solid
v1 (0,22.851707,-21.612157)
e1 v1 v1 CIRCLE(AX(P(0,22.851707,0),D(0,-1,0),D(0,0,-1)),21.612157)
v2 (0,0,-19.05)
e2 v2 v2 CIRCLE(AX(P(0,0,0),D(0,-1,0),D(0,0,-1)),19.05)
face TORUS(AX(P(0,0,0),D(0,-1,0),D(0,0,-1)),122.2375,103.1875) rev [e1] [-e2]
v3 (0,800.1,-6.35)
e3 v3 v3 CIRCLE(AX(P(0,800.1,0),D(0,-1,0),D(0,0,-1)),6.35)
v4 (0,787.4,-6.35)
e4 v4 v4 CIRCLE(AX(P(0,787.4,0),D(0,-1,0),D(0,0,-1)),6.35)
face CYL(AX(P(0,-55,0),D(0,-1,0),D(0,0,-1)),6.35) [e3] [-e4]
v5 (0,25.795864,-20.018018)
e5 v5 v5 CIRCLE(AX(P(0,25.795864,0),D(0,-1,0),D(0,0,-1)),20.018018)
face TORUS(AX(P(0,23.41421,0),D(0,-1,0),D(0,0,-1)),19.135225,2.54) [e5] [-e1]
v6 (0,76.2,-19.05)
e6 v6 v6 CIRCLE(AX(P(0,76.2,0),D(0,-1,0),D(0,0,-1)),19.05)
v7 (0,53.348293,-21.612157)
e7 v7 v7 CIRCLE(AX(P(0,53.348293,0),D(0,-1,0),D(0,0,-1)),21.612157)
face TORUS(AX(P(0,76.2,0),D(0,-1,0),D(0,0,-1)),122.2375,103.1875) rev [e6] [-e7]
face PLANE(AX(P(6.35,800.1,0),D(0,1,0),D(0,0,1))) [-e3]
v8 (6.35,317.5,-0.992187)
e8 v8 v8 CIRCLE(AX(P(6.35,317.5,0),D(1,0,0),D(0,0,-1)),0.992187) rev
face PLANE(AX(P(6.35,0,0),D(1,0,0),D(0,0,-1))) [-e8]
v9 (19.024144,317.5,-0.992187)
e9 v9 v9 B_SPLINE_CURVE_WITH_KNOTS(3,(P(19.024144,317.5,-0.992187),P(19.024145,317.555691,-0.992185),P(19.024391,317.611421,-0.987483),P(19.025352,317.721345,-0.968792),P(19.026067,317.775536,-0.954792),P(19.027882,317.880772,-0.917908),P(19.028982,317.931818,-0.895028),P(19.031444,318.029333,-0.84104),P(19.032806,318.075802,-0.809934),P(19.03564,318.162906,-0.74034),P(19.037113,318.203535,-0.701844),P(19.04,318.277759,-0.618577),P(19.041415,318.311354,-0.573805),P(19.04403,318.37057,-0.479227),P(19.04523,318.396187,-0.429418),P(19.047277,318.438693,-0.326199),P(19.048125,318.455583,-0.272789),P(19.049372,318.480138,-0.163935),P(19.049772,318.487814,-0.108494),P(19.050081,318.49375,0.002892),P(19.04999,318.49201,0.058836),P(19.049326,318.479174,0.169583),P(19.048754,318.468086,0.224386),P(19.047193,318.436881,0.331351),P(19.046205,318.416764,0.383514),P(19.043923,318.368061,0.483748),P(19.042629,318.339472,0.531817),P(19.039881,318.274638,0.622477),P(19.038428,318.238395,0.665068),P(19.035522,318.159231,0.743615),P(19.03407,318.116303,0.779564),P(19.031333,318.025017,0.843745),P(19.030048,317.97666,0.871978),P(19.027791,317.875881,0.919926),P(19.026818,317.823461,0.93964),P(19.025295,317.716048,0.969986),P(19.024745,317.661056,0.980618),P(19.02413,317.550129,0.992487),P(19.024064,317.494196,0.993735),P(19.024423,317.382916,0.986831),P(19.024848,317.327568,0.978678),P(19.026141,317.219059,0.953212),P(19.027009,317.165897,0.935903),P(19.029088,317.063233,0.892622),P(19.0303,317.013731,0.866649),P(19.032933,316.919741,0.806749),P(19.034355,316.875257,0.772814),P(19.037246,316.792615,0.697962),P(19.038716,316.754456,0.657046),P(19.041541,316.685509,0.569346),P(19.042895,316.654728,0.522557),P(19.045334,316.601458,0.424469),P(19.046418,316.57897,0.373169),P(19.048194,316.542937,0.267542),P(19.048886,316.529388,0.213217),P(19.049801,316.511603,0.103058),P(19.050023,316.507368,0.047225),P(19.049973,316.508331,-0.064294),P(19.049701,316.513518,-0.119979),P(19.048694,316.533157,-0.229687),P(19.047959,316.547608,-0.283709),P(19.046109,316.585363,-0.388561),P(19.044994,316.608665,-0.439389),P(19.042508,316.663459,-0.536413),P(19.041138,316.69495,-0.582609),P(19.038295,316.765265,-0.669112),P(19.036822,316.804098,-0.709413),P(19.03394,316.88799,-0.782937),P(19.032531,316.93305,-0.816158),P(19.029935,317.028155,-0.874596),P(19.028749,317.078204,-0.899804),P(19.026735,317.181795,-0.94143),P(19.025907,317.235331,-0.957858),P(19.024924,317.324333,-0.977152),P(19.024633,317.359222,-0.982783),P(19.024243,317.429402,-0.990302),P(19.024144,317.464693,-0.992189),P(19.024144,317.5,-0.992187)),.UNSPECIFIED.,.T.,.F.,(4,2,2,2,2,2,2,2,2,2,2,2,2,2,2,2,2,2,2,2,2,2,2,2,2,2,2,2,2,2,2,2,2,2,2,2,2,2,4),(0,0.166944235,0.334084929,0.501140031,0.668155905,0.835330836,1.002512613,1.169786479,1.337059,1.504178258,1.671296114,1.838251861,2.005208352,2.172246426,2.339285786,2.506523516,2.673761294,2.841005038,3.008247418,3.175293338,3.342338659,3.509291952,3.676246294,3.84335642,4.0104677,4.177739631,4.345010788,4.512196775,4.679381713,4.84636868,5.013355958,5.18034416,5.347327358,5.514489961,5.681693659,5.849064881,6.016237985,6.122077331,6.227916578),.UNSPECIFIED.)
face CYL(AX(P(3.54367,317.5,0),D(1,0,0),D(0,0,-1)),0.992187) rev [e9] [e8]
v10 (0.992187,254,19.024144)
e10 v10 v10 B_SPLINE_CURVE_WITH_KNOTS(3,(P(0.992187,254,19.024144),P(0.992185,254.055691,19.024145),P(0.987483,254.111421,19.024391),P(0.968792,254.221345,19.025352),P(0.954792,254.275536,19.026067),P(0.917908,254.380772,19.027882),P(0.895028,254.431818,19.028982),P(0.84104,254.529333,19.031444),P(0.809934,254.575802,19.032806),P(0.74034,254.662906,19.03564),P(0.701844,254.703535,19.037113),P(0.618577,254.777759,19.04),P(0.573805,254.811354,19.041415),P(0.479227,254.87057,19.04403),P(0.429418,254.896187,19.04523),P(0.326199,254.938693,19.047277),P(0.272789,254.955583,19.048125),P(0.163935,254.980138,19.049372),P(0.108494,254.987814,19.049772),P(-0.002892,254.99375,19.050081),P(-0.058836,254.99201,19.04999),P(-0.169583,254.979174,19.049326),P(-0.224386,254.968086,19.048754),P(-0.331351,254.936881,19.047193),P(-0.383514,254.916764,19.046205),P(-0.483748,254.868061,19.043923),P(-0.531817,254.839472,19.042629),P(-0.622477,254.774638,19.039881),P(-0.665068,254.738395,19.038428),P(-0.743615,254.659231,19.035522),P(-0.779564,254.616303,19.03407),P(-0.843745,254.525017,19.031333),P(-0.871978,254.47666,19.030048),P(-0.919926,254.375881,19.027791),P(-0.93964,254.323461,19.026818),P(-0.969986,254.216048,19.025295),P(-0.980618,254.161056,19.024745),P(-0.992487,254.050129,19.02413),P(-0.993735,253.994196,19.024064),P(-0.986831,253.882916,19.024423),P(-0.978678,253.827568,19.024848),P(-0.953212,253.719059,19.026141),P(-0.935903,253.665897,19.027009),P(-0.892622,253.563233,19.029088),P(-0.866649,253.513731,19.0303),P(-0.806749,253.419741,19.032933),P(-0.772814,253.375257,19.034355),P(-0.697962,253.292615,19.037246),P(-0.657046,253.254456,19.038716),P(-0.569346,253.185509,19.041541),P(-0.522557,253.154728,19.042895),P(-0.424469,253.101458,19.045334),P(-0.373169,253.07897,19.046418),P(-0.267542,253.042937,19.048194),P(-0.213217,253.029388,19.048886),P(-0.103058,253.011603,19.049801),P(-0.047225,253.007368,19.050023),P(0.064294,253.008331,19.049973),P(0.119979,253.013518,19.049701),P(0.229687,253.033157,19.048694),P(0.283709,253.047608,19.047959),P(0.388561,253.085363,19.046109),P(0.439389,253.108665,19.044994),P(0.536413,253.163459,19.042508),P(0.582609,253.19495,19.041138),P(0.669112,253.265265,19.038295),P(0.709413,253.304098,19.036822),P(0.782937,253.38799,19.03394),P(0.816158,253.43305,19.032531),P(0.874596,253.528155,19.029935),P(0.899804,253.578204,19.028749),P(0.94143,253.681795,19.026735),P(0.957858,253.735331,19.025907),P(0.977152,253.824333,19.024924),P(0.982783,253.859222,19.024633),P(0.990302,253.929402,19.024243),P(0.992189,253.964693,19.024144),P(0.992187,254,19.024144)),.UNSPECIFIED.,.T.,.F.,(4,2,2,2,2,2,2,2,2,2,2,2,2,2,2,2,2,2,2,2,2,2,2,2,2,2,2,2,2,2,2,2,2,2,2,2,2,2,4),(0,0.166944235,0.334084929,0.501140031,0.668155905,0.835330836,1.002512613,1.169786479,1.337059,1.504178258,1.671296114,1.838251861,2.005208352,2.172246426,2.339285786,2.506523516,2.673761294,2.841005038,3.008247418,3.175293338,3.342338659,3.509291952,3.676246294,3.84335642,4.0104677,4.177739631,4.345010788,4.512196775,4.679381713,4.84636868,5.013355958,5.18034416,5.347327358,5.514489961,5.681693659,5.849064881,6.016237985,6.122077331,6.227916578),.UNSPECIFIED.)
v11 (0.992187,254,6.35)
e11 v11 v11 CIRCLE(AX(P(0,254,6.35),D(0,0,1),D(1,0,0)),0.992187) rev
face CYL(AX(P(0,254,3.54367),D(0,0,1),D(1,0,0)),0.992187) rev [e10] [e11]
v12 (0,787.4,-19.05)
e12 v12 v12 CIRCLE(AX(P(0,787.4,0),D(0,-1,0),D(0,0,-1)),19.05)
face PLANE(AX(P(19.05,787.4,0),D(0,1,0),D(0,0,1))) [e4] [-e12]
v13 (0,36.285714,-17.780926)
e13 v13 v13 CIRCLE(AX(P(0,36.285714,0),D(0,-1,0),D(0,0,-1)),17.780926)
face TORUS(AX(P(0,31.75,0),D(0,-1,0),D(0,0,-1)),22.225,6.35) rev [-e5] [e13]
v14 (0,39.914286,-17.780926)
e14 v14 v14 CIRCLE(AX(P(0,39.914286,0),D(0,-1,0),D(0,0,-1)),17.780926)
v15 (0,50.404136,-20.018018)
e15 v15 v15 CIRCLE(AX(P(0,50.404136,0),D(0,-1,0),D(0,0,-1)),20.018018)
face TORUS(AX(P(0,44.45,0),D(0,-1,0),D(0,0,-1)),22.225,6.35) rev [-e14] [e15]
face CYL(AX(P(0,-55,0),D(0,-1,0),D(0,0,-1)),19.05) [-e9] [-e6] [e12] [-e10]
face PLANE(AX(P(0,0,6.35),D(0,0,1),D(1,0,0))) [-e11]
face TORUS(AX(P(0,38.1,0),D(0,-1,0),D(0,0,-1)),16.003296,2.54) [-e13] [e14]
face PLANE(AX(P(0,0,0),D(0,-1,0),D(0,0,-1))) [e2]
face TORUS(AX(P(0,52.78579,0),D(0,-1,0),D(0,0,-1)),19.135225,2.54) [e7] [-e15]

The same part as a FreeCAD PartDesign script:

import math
import FreeCAD as App
import Part
import Sketcher

V = App.Vector
Q = App.Units.Quantity

doc = App.newDocument("Part")
body = doc.addObject("PartDesign::Body", "Body")

sketch1 = body.newObject("Sketcher::SketchObject", "Sketch")
sketch1.AttachmentSupport = (doc.getObject("XY_Plane"), [""])
sketch1.MapMode = "FlatFace"
sketch1.addGeometry([
    Part.LineSegment(V(0, 0, 0), V(19.1, 0, 0)),
    Part.ArcOfCircle(Part.Circle(V(122.2, 0, 0), V(0, 0, 1), 103.2), math.radians(167.21), math.radians(180)),
    Part.ArcOfCircle(Part.Circle(V(19.1, 23.4, 0), V(0, 0, 1), 2.5), math.radians(-13), math.radians(70)),
    Part.ArcOfCircle(Part.Circle(V(22.2, 31.8, 0), V(0, 0, 1), 6.4), math.radians(180), math.radians(250)),
    Part.ArcOfCircle(Part.Circle(V(22.2, 31.7, 0), V(0, 0, 1), 6.4), math.radians(134), math.radians(180)),
    Part.ArcOfCircle(Part.Circle(V(16, 38.1, 0), V(0, 0, 1), 2.5), math.radians(-46), math.radians(46)),
    Part.ArcOfCircle(Part.Circle(V(22.2, 44.5, 0), V(0, 0, 1), 6.4), math.radians(-180), math.radians(-134)),
    Part.ArcOfCircle(Part.Circle(V(22.2, 44.5, 0), V(0, 0, 1), 6.4), math.radians(110), math.radians(180)),
    Part.ArcOfCircle(Part.Circle(V(19.1, 52.8, 0), V(0, 0, 1), 2.5), math.radians(-70), math.radians(13)),
    Part.ArcOfCircle(Part.Circle(V(122.2, 76.2, 0), V(0, 0, 1), 103.2), math.radians(180), math.radians(192.79)),
    Part.LineSegment(V(19.1, 76.2, 0), V(19.1, 787.4, 0)),
    Part.LineSegment(V(19.1, 787.4, 0), V(6.3, 787.4, 0)),
    Part.LineSegment(V(6.3, 787.4, 0), V(6.3, 800.1, 0)),
    Part.LineSegment(V(6.3, 800.1, 0), V(0, 800.1, 0)),
    Part.LineSegment(V(0, 800.1, 0), V(0, 0, 0)),
], False)
sketch1.addConstraint([
    Sketcher.Constraint("Coincident", 0, 2, 1, 2),
    Sketcher.Constraint("Tangent", 1, 1, 2, 1),
    Sketcher.Constraint("Tangent", 2, 2, 3, 2),
    Sketcher.Constraint("Tangent", 3, 1, 4, 2),
    Sketcher.Constraint("Tangent", 4, 1, 5, 1),
    Sketcher.Constraint("Tangent", 5, 2, 6, 2),
    Sketcher.Constraint("Tangent", 6, 1, 7, 2),
    Sketcher.Constraint("Tangent", 7, 1, 8, 1),
    Sketcher.Constraint("Tangent", 8, 2, 9, 2),
    Sketcher.Constraint("Tangent", 9, 1, 10, 1),
    Sketcher.Constraint("Coincident", 10, 2, 11, 1),
    Sketcher.Constraint("Coincident", 11, 2, 12, 1),
    Sketcher.Constraint("Coincident", 12, 2, 13, 1),
    Sketcher.Constraint("Coincident", 13, 2, 14, 1),
    Sketcher.Constraint("Coincident", 14, 2, 0, 1),
    Sketcher.Constraint("Horizontal", 0),
    Sketcher.Constraint("Vertical", 10),
    Sketcher.Constraint("Horizontal", 11),
    Sketcher.Constraint("Vertical", 12),
    Sketcher.Constraint("Horizontal", 13),
    Sketcher.Constraint("Vertical", 14),
    Sketcher.Constraint("Coincident", 14, 2, -1, 1),
    Sketcher.Constraint("Equal", 3, 4),
    Sketcher.Constraint("Equal", 2, 5),
    Sketcher.Constraint("Equal", 4, 6),
    Sketcher.Constraint("Equal", 6, 7),
    Sketcher.Constraint("Equal", 5, 8),
    Sketcher.Constraint("Equal", 1, 9),
    Sketcher.Constraint("PointOnObject", 1, 3, -1),
    Sketcher.Constraint("Horizontal", 4, 3, 3, 1),
    Sketcher.Constraint("Horizontal", 7, 3, 6, 1),
    Sketcher.Constraint("Vertical", 4, 3, 6, 3),
    Sketcher.Constraint("Vertical", 2, 3, 8, 3),
    Sketcher.Constraint("Vertical", 1, 3, 9, 3),
    Sketcher.Constraint("Equal", 11, 12),
    Sketcher.Constraint("Radius", 2, Q("0.1 in")),
    Sketcher.Constraint("DistanceY", 10, 1, 10, 2, Q("28 in")),
    Sketcher.Constraint("Radius", 3, Q("0.25 in")),
    Sketcher.Constraint("DistanceX", 11, 2, 11, 1, Q("0.5 in")),
    Sketcher.Constraint("DistanceY", 14, 2, 14, 1, Q("31.5 in")),
    Sketcher.Constraint("Radius", 1, Q("4.0625 in")),
    Sketcher.Constraint("DistanceX", 0, 1, 0, 2, Q("0.75 in")),
    Sketcher.Constraint("DistanceY", 3, 3, 6, 3, Q("0.5 in")),
    Sketcher.Constraint("DistanceX", -1, 1, 3, 3, Q("0.875 in")),
])
revolution = body.newObject("PartDesign::Revolution", "Revolution")
revolution.Profile = sketch1
revolution.ReferenceAxis = (sketch1, ["V_Axis"])
revolution.Angle = 360

sketch2 = body.newObject("Sketcher::SketchObject", "Sketch001")
sketch2.AttachmentSupport = (doc.getObject("XY_Plane"), [""])
sketch2.MapMode = "FlatFace"
sketch2.AttachmentOffset = App.Placement(V(0, 0, 0.25 * 25.4), App.Rotation())
sketch2.addGeometry(Part.Circle(V(0, 254, 0), V(0, 0, 1), 1), False)
sketch2.addConstraint([
    Sketcher.Constraint("PointOnObject", 0, 3, -2),
    Sketcher.Constraint("Diameter", 0, Q("0.078125 in")),
    Sketcher.Constraint("DistanceY", -1, 1, 0, 3, Q("10 in")),
])
pocket1 = body.newObject("PartDesign::Pocket", "Pocket")
pocket1.Profile = sketch2
pocket1.Length = Q("0.5 in")
pocket1.Reversed = True

sketch3 = body.newObject("Sketcher::SketchObject", "Sketch002")
sketch3.AttachmentSupport = (doc.getObject("YZ_Plane"), [""])
sketch3.MapMode = "FlatFace"
sketch3.AttachmentOffset = App.Placement(V(0, 0, 0.25 * 25.4), App.Rotation())
sketch3.addGeometry(Part.Circle(V(317.5, 0, 0), V(0, 0, 1), 1), False)
sketch3.addConstraint([
    Sketcher.Constraint("PointOnObject", 0, 3, -1),
    Sketcher.Constraint("Diameter", 0, Q("0.078125 in")),
    Sketcher.Constraint("DistanceX", -1, 1, 0, 3, Q("12.5 in")),
])
pocket2 = body.newObject("PartDesign::Pocket", "Pocket001")
pocket2.Profile = sketch3
pocket2.Length = Q("0.5 in")
pocket2.Reversed = True

doc.recompute()
